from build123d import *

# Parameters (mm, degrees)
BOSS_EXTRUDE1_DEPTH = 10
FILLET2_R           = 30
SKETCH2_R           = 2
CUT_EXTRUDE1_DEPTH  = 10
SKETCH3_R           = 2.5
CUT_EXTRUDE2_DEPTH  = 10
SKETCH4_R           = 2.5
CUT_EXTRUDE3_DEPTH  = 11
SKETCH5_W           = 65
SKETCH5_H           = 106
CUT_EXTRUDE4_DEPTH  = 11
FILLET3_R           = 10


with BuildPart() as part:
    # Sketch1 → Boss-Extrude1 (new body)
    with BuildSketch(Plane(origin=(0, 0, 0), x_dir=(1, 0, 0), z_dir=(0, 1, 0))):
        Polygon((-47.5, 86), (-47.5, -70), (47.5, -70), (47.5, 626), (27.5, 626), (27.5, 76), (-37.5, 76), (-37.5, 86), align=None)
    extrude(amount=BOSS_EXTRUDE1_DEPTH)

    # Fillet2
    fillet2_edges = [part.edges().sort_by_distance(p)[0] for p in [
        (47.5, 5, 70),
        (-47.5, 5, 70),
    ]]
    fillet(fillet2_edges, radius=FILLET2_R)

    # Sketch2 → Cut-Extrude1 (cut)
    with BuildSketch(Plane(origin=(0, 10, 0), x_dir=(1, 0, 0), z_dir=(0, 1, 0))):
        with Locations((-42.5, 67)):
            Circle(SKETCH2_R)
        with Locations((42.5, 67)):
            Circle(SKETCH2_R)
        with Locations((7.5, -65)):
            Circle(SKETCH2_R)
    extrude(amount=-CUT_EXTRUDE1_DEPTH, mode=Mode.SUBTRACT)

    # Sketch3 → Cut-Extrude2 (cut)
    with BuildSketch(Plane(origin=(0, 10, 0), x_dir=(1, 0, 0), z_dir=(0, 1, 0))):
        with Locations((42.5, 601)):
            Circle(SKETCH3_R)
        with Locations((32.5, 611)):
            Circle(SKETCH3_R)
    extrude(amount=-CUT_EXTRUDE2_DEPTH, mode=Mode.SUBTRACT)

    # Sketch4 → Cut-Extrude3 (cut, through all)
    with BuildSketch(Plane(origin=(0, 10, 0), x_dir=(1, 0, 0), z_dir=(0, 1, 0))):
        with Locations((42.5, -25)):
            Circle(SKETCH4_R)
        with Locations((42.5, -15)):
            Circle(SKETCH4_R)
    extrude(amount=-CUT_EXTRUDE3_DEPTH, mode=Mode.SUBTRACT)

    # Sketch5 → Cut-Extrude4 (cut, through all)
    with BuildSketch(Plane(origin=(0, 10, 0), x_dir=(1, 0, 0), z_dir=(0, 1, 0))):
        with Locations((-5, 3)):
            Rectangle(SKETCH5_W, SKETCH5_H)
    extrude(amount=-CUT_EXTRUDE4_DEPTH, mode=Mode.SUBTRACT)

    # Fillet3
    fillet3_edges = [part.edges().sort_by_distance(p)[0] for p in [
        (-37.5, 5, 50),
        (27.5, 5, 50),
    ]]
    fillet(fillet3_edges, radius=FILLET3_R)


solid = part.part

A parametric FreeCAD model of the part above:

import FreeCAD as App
import Part
import Sketcher
Q = App.Units.Quantity


def edges_at(feature, points):
    """Names of the edges that pass closest to the given points."""
    edges = feature.Shape.Edges
    near = lambda p: min(range(len(edges)), key=lambda i: edges[i].distToShape(Part.Vertex(*p))[0])
    return sorted({f"Edge{near(p) + 1}" for p in points})

doc = App.newDocument("Part")
body = doc.addObject("PartDesign::Body", "Body")

# Sketch on XZ plane
sketch1 = doc.addObject("Sketcher::SketchObject", "Sketch")
body.addObject(sketch1)
sketch1.AttachmentSupport = (doc.XZ_Plane, [""])
sketch1.MapMode = "FlatFace"
sketch1.addGeometry(Part.LineSegment(App.Vector(-48, -86, 0), App.Vector(-48, 70, 0)), False)
sketch1.addGeometry(Part.LineSegment(App.Vector(-48, 70, 0), App.Vector(48, 70, 0)), False)
sketch1.addGeometry(Part.LineSegment(App.Vector(48, 70, 0), App.Vector(48, -626, 0)), False)
sketch1.addGeometry(Part.LineSegment(App.Vector(48, -626, 0), App.Vector(28, -626, 0)), False)
sketch1.addGeometry(Part.LineSegment(App.Vector(28, -626, 0), App.Vector(28, -76, 0)), False)
sketch1.addGeometry(Part.LineSegment(App.Vector(28, -76, 0), App.Vector(-38, -76, 0)), False)
sketch1.addGeometry(Part.LineSegment(App.Vector(-38, -76, 0), App.Vector(-38, -86, 0)), False)
sketch1.addGeometry(Part.LineSegment(App.Vector(-38, -86, 0), App.Vector(-48, -86, 0)), False)
sketch1.addConstraint(Sketcher.Constraint("Coincident", 0, 2, 1, 1))
sketch1.addConstraint(Sketcher.Constraint("Coincident", 1, 2, 2, 1))
sketch1.addConstraint(Sketcher.Constraint("Coincident", 2, 2, 3, 1))
sketch1.addConstraint(Sketcher.Constraint("Coincident", 3, 2, 4, 1))
sketch1.addConstraint(Sketcher.Constraint("Coincident", 4, 2, 5, 1))
sketch1.addConstraint(Sketcher.Constraint("Coincident", 5, 2, 6, 1))
sketch1.addConstraint(Sketcher.Constraint("Coincident", 6, 2, 7, 1))
sketch1.addConstraint(Sketcher.Constraint("Coincident", 7, 2, 0, 1))
sketch1.addConstraint(Sketcher.Constraint("Vertical", 0))
sketch1.addConstraint(Sketcher.Constraint("Horizontal", 1))
sketch1.addConstraint(Sketcher.Constraint("Vertical", 2))
sketch1.addConstraint(Sketcher.Constraint("Horizontal", 3))
sketch1.addConstraint(Sketcher.Constraint("Vertical", 4))
sketch1.addConstraint(Sketcher.Constraint("Horizontal", 5))
sketch1.addConstraint(Sketcher.Constraint("Vertical", 6))
sketch1.addConstraint(Sketcher.Constraint("Horizontal", 7))
sketch1.addConstraint(Sketcher.Constraint("Equal", 7, 6))
sketch1.addConstraint(Sketcher.Constraint("DistanceX", 1, 1, 1, 2, Q("95 mm")))
sketch1.addConstraint(Sketcher.Constraint("DistanceX", 3, 2, 3, 1, Q("20 mm")))
sketch1.addConstraint(Sketcher.Constraint("DistanceX", 5, 2, 5, 1, Q("65 mm")))
sketch1.addConstraint(Sketcher.Constraint("DistanceY", 0, 1, 0, 2, Q("156 mm")))
sketch1.addConstraint(Sketcher.Constraint("DistanceY", 2, 2, 2, 1, Q("696 mm")))
sketch1.addConstraint(Sketcher.Constraint("DistanceY", -1, 1, 0, 2, Q("70 mm")))
sketch1.addConstraint(Sketcher.Constraint("DistanceX", 0, 2, -1, 1, Q("47.5 mm")))
pad1 = doc.addObject("PartDesign::Pad", "Pad")
body.addObject(pad1)
pad1.Profile = sketch1
pad1.Length = 10
pad1.Reversed = True
doc.recompute()

fillet = doc.addObject("PartDesign::Fillet", "Fillet")
body.addObject(fillet)
fillet.Base = (pad1, edges_at(pad1, [(47.5, 5, 70), (-47.5, 5, 70)]))
fillet.Radius = 30

# Sketch on XZ plane
sketch2 = doc.addObject("Sketcher::SketchObject", "Sketch001")
body.addObject(sketch2)
sketch2.AttachmentSupport = (doc.XZ_Plane, [""])
sketch2.MapMode = "FlatFace"
sketch2.AttachmentOffset = App.Placement(App.Vector(0, 0, -10), App.Rotation())
sketch2.addGeometry(Part.Circle(App.Vector(-42.5, -67, 0), App.Vector(0, 0, 1), 2), False)
sketch2.addGeometry(Part.Circle(App.Vector(42.5, -67, 0), App.Vector(0, 0, 1), 2), False)
sketch2.addGeometry(Part.Circle(App.Vector(7.5, 65, 0), App.Vector(0, 0, 1), 2), False)
sketch2.addConstraint(Sketcher.Constraint("Equal", 0, 1))
sketch2.addConstraint(Sketcher.Constraint("Equal", 1, 2))
sketch2.addConstraint(Sketcher.Constraint("Symmetric", 0, 3, 1, 3, -2))
sketch2.addConstraint(Sketcher.Constraint("Diameter", 0, Q("4 mm")))
sketch2.addConstraint(Sketcher.Constraint("DistanceY", 0, 3, -1, 1, Q("67 mm")))
sketch2.addConstraint(Sketcher.Constraint("DistanceY", -1, 1, 2, 3, Q("65 mm")))
sketch2.addConstraint(Sketcher.Constraint("DistanceX", 0, 3, 1, 3, Q("85 mm")))
sketch2.addConstraint(Sketcher.Constraint("DistanceX", 2, 3, 1, 3, Q("35 mm")))
pocket1 = doc.addObject("PartDesign::Pocket", "Pocket")
body.addObject(pocket1)
pocket1.Profile = sketch2
pocket1.Length = 10
pocket1.Reversed = True

# Sketch on XZ plane
sketch3 = doc.addObject("Sketcher::SketchObject", "Sketch002")
body.addObject(sketch3)
sketch3.AttachmentSupport = (doc.XZ_Plane, [""])
sketch3.MapMode = "FlatFace"
sketch3.AttachmentOffset = App.Placement(App.Vector(0, 0, -10), App.Rotation())
sketch3.addGeometry(Part.Circle(App.Vector(42.5, -601, 0), App.Vector(0, 0, 1), 2.5), False)
sketch3.addGeometry(Part.Circle(App.Vector(32.5, -611, 0), App.Vector(0, 0, 1), 2.5), False)
sketch3.addConstraint(Sketcher.Constraint("Equal", 0, 1))
sketch3.addConstraint(Sketcher.Constraint("Diameter", 0, Q("5 mm")))
sketch3.addConstraint(Sketcher.Constraint("DistanceY", 0, 3, -1, 1, Q("601 mm")))
sketch3.addConstraint(Sketcher.Constraint("DistanceY", 1, 3, -1, 1, Q("611 mm")))
sketch3.addConstraint(Sketcher.Constraint("DistanceX", 1, 3, 0, 3, Q("10 mm")))
sketch3.addConstraint(Sketcher.Constraint("DistanceX", -1, 1, 0, 3, Q("42.5 mm")))
pocket2 = doc.addObject("PartDesign::Pocket", "Pocket001")
body.addObject(pocket2)
pocket2.Profile = sketch3
pocket2.Length = 10
pocket2.Reversed = True

# Sketch on XZ plane
sketch4 = doc.addObject("Sketcher::SketchObject", "Sketch003")
body.addObject(sketch4)
sketch4.AttachmentSupport = (doc.XZ_Plane, [""])
sketch4.MapMode = "FlatFace"
sketch4.AttachmentOffset = App.Placement(App.Vector(0, 0, -10), App.Rotation())
sketch4.addGeometry(Part.Circle(App.Vector(42.5, 25, 0), App.Vector(0, 0, 1), 2.5), False)
sketch4.addGeometry(Part.Circle(App.Vector(42.5, 15, 0), App.Vector(0, 0, 1), 2.5), False)
sketch4.addConstraint(Sketcher.Constraint("Equal", 0, 1))
sketch4.addConstraint(Sketcher.Constraint("Vertical", 0, 3, 1, 3))
sketch4.addConstraint(Sketcher.Constraint("Diameter", 0, Q("5 mm")))
sketch4.addConstraint(Sketcher.Constraint("DistanceY", -1, 1, 0, 3, Q("25 mm")))
sketch4.addConstraint(Sketcher.Constraint("DistanceY", -1, 1, 1, 3, Q("15 mm")))
sketch4.addConstraint(Sketcher.Constraint("DistanceX", -1, 1, 0, 3, Q("42.5 mm")))
pocket3 = doc.addObject("PartDesign::Pocket", "Pocket002")
body.addObject(pocket3)
pocket3.Profile = sketch4
pocket3.Type = "ThroughAll"
pocket3.Reversed = True

# Sketch on XZ plane
sketch5 = doc.addObject("Sketcher::SketchObject", "Sketch004")
body.addObject(sketch5)
sketch5.AttachmentSupport = (doc.XZ_Plane, [""])
sketch5.MapMode = "FlatFace"
sketch5.AttachmentOffset = App.Placement(App.Vector(0, 0, -10), App.Rotation())
sketch5.addGeometry(Part.LineSegment(App.Vector(-38, -56, 0), App.Vector(-38, 50, 0)), False)
sketch5.addGeometry(Part.LineSegment(App.Vector(-38, 50, 0), App.Vector(28, 50, 0)), False)
sketch5.addGeometry(Part.LineSegment(App.Vector(28, 50, 0), App.Vector(28, -56, 0)), False)
sketch5.addGeometry(Part.LineSegment(App.Vector(28, -56, 0), App.Vector(-38, -56, 0)), False)
sketch5.addConstraint(Sketcher.Constraint("Coincident", 0, 2, 1, 1))
sketch5.addConstraint(Sketcher.Constraint("Coincident", 1, 2, 2, 1))
sketch5.addConstraint(Sketcher.Constraint("Coincident", 2, 2, 3, 1))
sketch5.addConstraint(Sketcher.Constraint("Coincident", 3, 2, 0, 1))
sketch5.addConstraint(Sketcher.Constraint("Vertical", 0))
sketch5.addConstraint(Sketcher.Constraint("Horizontal", 1))
sketch5.addConstraint(Sketcher.Constraint("Vertical", 2))
sketch5.addConstraint(Sketcher.Constraint("Horizontal", 3))
sketch5.addConstraint(Sketcher.Constraint("DistanceX", 1, 1, 1, 2, Q("65 mm")))
sketch5.addConstraint(Sketcher.Constraint("DistanceY", 0, 1, 0, 2, Q("106 mm")))
sketch5.addConstraint(Sketcher.Constraint("DistanceY", -1, 1, 0, 2, Q("50 mm")))
sketch5.addConstraint(Sketcher.Constraint("DistanceX", 0, 2, -1, 1, Q("37.5 mm")))
pocket4 = doc.addObject("PartDesign::Pocket", "Pocket003")
body.addObject(pocket4)
pocket4.Profile = sketch5
pocket4.Type = "ThroughAll"
pocket4.Reversed = True
doc.recompute()

fillet2 = doc.addObject("PartDesign::Fillet", "Fillet001")
body.addObject(fillet2)
fillet2.Base = (pocket4, edges_at(pocket4, [(-37.5, 5, 50), (27.5, 5, 50)]))
fillet2.Radius = 10

doc.recompute()
